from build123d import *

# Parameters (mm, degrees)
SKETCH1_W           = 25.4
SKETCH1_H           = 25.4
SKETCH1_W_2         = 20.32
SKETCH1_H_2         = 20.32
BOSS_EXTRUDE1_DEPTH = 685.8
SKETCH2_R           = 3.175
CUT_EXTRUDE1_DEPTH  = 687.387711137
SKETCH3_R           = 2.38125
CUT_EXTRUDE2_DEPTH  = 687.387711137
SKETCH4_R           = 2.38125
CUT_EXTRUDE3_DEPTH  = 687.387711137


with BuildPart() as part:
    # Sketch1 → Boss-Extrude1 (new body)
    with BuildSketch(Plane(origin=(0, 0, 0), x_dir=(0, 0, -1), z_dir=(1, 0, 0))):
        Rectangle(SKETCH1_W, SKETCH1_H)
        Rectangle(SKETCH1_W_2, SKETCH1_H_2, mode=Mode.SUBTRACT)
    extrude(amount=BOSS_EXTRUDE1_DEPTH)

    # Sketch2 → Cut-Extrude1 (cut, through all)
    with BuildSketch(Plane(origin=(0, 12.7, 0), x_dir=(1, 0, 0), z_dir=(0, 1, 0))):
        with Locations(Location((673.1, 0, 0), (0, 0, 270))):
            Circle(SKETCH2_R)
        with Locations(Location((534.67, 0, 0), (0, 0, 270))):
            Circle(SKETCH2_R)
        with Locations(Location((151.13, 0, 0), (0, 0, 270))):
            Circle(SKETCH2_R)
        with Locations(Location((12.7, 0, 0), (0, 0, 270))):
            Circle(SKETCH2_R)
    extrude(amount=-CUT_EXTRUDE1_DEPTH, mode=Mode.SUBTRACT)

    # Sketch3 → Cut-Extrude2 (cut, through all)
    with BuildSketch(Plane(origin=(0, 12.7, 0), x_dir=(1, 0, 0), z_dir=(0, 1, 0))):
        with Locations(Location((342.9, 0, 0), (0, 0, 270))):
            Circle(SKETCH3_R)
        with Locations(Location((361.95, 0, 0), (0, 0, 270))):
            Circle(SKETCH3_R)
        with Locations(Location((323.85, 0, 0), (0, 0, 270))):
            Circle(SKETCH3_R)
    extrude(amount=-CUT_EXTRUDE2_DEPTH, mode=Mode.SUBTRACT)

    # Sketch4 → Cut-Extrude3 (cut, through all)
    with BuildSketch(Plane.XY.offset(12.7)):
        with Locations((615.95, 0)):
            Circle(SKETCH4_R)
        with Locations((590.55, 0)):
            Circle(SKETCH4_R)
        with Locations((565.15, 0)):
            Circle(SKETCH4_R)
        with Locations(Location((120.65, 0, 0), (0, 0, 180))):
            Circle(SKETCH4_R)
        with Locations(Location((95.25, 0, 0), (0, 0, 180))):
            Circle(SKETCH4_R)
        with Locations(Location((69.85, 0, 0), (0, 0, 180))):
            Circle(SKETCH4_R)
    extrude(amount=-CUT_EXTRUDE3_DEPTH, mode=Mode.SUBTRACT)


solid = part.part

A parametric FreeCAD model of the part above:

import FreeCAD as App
import Part
import Sketcher
Q = App.Units.Quantity


def add_polygon(sketch, points):
    """Adds a closed chain of lines whose ends are joined by coincident constraints."""
    first, n = sketch.GeometryCount, len(points)
    for a, b in zip(points, points[1:] + points[:1]):
        sketch.addGeometry(Part.LineSegment(App.Vector(*a, 0), App.Vector(*b, 0)), False)
    for i in range(n):
        sketch.addConstraint(Sketcher.Constraint("Coincident", first + i, 2, first + (i + 1) % n, 1))

doc = App.newDocument("Part")
params = doc.addObject("Spreadsheet::Sheet", "Params")
for row, (alias, value) in enumerate([
    ("sketch1_width", "1 in"),
    ("sketch1_width2", "0.8 in"),
    ("pad1_length", "27 in"),
    ("sketch2_diameter", "0.25 in"),
    ("sketch3_diameter", "0.1875 in"),
    ("sketch4_diameter", "0.1875 in"),
], start=1):
    params.set(f"A{row}", alias)
    params.set(f"B{row}", "=" + value)
    params.setAlias(f"B{row}", alias)

body = doc.addObject("PartDesign::Body", "Body")

# Sketch on YZ plane
sketch1 = body.newObject("Sketcher::SketchObject", "Sketch")
sketch1.AttachmentSupport = (doc.getObject("YZ_Plane"), [""])
sketch1.MapMode = "FlatFace"
add_polygon(sketch1, [(12.7, 12.7), (-12.7, 12.7), (-12.7, -12.7), (12.7, -12.7)])  # lines 0-3
add_polygon(sketch1, [(-10.16, -10.16), (-10.16, 10.16), (10.16, 10.16), (10.16, -10.16)])  # lines 4-7
sketch1.addConstraint(Sketcher.Constraint("Horizontal", 0))
sketch1.addConstraint(Sketcher.Constraint("Vertical", 1))
sketch1.addConstraint(Sketcher.Constraint("Horizontal", 2))
sketch1.addConstraint(Sketcher.Constraint("Vertical", 3))
sketch1.addConstraint(Sketcher.Constraint("Vertical", 4))
sketch1.addConstraint(Sketcher.Constraint("Horizontal", 5))
sketch1.addConstraint(Sketcher.Constraint("Vertical", 6))
sketch1.addConstraint(Sketcher.Constraint("Horizontal", 7))
sketch1.addConstraint(Sketcher.Constraint("Symmetric", 0, 2, 2, 2, -1, 1))
sketch1.addConstraint(Sketcher.Constraint("Symmetric", 4, 2, 6, 2, -1, 1))
sketch1.addConstraint(Sketcher.Constraint("Equal", 2, 1))
sketch1.addConstraint(Sketcher.Constraint("Equal", 7, 4))
sketch1.addConstraint(Sketcher.Constraint("DistanceX", 0, 2, 0, 1, Q("1 in")))
sketch1.addConstraint(Sketcher.Constraint("DistanceX", 5, 1, 5, 2, Q("0.8 in")))
sketch1.setExpression("Constraints[20]", "Params.sketch1_width")
sketch1.setExpression("Constraints[21]", "Params.sketch1_width2")
pad1 = body.newObject("PartDesign::Pad", "Pad")
pad1.Profile = sketch1
pad1.setExpression("Length", "Params.pad1_length")

# Sketch on XZ plane
sketch2 = body.newObject("Sketcher::SketchObject", "Sketch001")
sketch2.AttachmentSupport = (doc.getObject("XZ_Plane"), [""])
sketch2.MapMode = "FlatFace"
sketch2.AttachmentOffset = App.Placement(App.Vector(0, 0, -0.5 * 25.4), App.Rotation())
sketch2.addGeometry(Part.Circle(App.Vector(673.1, 0, 0), App.Vector(0, 0, 1), 3.175), False)
sketch2.addGeometry(Part.Circle(App.Vector(534.67, 0, 0), App.Vector(0, 0, 1), 3.175), False)
sketch2.addGeometry(Part.Circle(App.Vector(151.13, 0, 0), App.Vector(0, 0, 1), 3.175), False)
sketch2.addGeometry(Part.Circle(App.Vector(12.7, 0, 0), App.Vector(0, 0, 1), 3.175), False)
sketch2.addConstraint(Sketcher.Constraint("Equal", 0, 1))
sketch2.addConstraint(Sketcher.Constraint("Equal", 1, 2))
sketch2.addConstraint(Sketcher.Constraint("Equal", 2, 3))
sketch2.addConstraint(Sketcher.Constraint("PointOnObject", 0, 3, -1))
sketch2.addConstraint(Sketcher.Constraint("PointOnObject", 1, 3, -1))
sketch2.addConstraint(Sketcher.Constraint("PointOnObject", 2, 3, -1))
sketch2.addConstraint(Sketcher.Constraint("PointOnObject", 3, 3, -1))
sketch2.addConstraint(Sketcher.Constraint("Diameter", 0, Q("0.25 in")))
sketch2.addConstraint(Sketcher.Constraint("DistanceX", 3, 3, 0, 3, Q("26 in")))
sketch2.addConstraint(Sketcher.Constraint("DistanceX", -1, 1, 0, 3, Q("26.5 in")))
sketch2.addConstraint(Sketcher.Constraint("DistanceX", 2, 3, 1, 3, Q("15.1 in")))
sketch2.addConstraint(Sketcher.Constraint("DistanceX", -1, 1, 1, 3, Q("21.05 in")))
sketch2.setExpression("Constraints[7]", "Params.sketch2_diameter")
pocket1 = body.newObject("PartDesign::Pocket", "Pocket")
pocket1.Profile = sketch2
pocket1.Type = "ThroughAll"
pocket1.Reversed = True

# Sketch on XZ plane
sketch3 = body.newObject("Sketcher::SketchObject", "Sketch002")
sketch3.AttachmentSupport = (doc.getObject("XZ_Plane"), [""])
sketch3.MapMode = "FlatFace"
sketch3.AttachmentOffset = App.Placement(App.Vector(0, 0, -0.5 * 25.4), App.Rotation())
sketch3.addGeometry(Part.Circle(App.Vector(342.9, 0, 0), App.Vector(0, 0, 1), 2.38125), False)
sketch3.addGeometry(Part.Circle(App.Vector(361.95, 0, 0), App.Vector(0, 0, 1), 2.38125), False)
sketch3.addGeometry(Part.Circle(App.Vector(323.85, 0, 0), App.Vector(0, 0, 1), 2.38125), False)
sketch3.addConstraint(Sketcher.Constraint("Equal", 0, 1))
sketch3.addConstraint(Sketcher.Constraint("Equal", 1, 2))
sketch3.addConstraint(Sketcher.Constraint("PointOnObject", 0, 3, -1))
sketch3.addConstraint(Sketcher.Constraint("PointOnObject", 1, 3, -1))
sketch3.addConstraint(Sketcher.Constraint("PointOnObject", 2, 3, -1))
sketch3.addConstraint(Sketcher.Constraint("Diameter", 0, Q("0.1875 in")))
sketch3.addConstraint(Sketcher.Constraint("DistanceX", -1, 1, 0, 3, Q("13.5 in")))
sketch3.addConstraint(Sketcher.Constraint("DistanceX", 2, 3, 1, 3, Q("1.5 in")))
sketch3.addConstraint(Sketcher.Constraint("DistanceX", -1, 1, 1, 3, Q("14.25 in")))
sketch3.setExpression("Constraints[5]", "Params.sketch3_diameter")
pocket2 = body.newObject("PartDesign::Pocket", "Pocket001")
pocket2.Profile = sketch3
pocket2.Type = "ThroughAll"
pocket2.Reversed = True

# Sketch on XY plane
sketch4 = body.newObject("Sketcher::SketchObject", "Sketch003")
sketch4.AttachmentSupport = (doc.getObject("XY_Plane"), [""])
sketch4.MapMode = "FlatFace"
sketch4.AttachmentOffset = App.Placement(App.Vector(0, 0, 0.5 * 25.4), App.Rotation())
sketch4.addGeometry(Part.Circle(App.Vector(615.95, 0, 0), App.Vector(0, 0, 1), 2.38125), False)
sketch4.addGeometry(Part.Circle(App.Vector(590.55, 0, 0), App.Vector(0, 0, 1), 2.38125), False)
sketch4.addGeometry(Part.Circle(App.Vector(565.15, 0, 0), App.Vector(0, 0, 1), 2.38125), False)
sketch4.addGeometry(Part.Circle(App.Vector(120.65, 0, 0), App.Vector(0, 0, 1), 2.38125), False)
sketch4.addGeometry(Part.Circle(App.Vector(95.25, 0, 0), App.Vector(0, 0, 1), 2.38125), False)
sketch4.addGeometry(Part.Circle(App.Vector(69.85, 0, 0), App.Vector(0, 0, 1), 2.38125), False)
sketch4.addConstraint(Sketcher.Constraint("Equal", 0, 1))
sketch4.addConstraint(Sketcher.Constraint("Equal", 1, 2))
sketch4.addConstraint(Sketcher.Constraint("Equal", 2, 3))
sketch4.addConstraint(Sketcher.Constraint("Equal", 3, 4))
sketch4.addConstraint(Sketcher.Constraint("Equal", 4, 5))
sketch4.addConstraint(Sketcher.Constraint("PointOnObject", 0, 3, -1))
sketch4.addConstraint(Sketcher.Constraint("PointOnObject", 1, 3, -1))
sketch4.addConstraint(Sketcher.Constraint("PointOnObject", 2, 3, -1))
sketch4.addConstraint(Sketcher.Constraint("PointOnObject", 3, 3, -1))
sketch4.addConstraint(Sketcher.Constraint("PointOnObject", 4, 3, -1))
sketch4.addConstraint(Sketcher.Constraint("PointOnObject", 5, 3, -1))
sketch4.addConstraint(Sketcher.Constraint("Diameter", 0, Q("0.1875 in")))
sketch4.addConstraint(Sketcher.Constraint("DistanceX", 1, 3, 0, 3, Q("1 in")))
sketch4.addConstraint(Sketcher.Constraint("DistanceX", 2, 3, 1, 3, Q("1 in")))
sketch4.addConstraint(Sketcher.Constraint("DistanceX", 4, 3, 3, 3, Q("1 in")))
sketch4.addConstraint(Sketcher.Constraint("DistanceX", 5, 3, 4, 3, Q("1 in")))
sketch4.addConstraint(Sketcher.Constraint("DistanceX", 3, 3, 2, 3, Q("17.5 in")))
sketch4.addConstraint(Sketcher.Constraint("DistanceX", -1, 1, 0, 3, Q("24.25 in")))
sketch4.setExpression("Constraints[11]", "Params.sketch4_diameter")
pocket3 = body.newObject("PartDesign::Pocket", "Pocket002")
pocket3.Profile = sketch4
pocket3.Type = "ThroughAll"

doc.recompute()
